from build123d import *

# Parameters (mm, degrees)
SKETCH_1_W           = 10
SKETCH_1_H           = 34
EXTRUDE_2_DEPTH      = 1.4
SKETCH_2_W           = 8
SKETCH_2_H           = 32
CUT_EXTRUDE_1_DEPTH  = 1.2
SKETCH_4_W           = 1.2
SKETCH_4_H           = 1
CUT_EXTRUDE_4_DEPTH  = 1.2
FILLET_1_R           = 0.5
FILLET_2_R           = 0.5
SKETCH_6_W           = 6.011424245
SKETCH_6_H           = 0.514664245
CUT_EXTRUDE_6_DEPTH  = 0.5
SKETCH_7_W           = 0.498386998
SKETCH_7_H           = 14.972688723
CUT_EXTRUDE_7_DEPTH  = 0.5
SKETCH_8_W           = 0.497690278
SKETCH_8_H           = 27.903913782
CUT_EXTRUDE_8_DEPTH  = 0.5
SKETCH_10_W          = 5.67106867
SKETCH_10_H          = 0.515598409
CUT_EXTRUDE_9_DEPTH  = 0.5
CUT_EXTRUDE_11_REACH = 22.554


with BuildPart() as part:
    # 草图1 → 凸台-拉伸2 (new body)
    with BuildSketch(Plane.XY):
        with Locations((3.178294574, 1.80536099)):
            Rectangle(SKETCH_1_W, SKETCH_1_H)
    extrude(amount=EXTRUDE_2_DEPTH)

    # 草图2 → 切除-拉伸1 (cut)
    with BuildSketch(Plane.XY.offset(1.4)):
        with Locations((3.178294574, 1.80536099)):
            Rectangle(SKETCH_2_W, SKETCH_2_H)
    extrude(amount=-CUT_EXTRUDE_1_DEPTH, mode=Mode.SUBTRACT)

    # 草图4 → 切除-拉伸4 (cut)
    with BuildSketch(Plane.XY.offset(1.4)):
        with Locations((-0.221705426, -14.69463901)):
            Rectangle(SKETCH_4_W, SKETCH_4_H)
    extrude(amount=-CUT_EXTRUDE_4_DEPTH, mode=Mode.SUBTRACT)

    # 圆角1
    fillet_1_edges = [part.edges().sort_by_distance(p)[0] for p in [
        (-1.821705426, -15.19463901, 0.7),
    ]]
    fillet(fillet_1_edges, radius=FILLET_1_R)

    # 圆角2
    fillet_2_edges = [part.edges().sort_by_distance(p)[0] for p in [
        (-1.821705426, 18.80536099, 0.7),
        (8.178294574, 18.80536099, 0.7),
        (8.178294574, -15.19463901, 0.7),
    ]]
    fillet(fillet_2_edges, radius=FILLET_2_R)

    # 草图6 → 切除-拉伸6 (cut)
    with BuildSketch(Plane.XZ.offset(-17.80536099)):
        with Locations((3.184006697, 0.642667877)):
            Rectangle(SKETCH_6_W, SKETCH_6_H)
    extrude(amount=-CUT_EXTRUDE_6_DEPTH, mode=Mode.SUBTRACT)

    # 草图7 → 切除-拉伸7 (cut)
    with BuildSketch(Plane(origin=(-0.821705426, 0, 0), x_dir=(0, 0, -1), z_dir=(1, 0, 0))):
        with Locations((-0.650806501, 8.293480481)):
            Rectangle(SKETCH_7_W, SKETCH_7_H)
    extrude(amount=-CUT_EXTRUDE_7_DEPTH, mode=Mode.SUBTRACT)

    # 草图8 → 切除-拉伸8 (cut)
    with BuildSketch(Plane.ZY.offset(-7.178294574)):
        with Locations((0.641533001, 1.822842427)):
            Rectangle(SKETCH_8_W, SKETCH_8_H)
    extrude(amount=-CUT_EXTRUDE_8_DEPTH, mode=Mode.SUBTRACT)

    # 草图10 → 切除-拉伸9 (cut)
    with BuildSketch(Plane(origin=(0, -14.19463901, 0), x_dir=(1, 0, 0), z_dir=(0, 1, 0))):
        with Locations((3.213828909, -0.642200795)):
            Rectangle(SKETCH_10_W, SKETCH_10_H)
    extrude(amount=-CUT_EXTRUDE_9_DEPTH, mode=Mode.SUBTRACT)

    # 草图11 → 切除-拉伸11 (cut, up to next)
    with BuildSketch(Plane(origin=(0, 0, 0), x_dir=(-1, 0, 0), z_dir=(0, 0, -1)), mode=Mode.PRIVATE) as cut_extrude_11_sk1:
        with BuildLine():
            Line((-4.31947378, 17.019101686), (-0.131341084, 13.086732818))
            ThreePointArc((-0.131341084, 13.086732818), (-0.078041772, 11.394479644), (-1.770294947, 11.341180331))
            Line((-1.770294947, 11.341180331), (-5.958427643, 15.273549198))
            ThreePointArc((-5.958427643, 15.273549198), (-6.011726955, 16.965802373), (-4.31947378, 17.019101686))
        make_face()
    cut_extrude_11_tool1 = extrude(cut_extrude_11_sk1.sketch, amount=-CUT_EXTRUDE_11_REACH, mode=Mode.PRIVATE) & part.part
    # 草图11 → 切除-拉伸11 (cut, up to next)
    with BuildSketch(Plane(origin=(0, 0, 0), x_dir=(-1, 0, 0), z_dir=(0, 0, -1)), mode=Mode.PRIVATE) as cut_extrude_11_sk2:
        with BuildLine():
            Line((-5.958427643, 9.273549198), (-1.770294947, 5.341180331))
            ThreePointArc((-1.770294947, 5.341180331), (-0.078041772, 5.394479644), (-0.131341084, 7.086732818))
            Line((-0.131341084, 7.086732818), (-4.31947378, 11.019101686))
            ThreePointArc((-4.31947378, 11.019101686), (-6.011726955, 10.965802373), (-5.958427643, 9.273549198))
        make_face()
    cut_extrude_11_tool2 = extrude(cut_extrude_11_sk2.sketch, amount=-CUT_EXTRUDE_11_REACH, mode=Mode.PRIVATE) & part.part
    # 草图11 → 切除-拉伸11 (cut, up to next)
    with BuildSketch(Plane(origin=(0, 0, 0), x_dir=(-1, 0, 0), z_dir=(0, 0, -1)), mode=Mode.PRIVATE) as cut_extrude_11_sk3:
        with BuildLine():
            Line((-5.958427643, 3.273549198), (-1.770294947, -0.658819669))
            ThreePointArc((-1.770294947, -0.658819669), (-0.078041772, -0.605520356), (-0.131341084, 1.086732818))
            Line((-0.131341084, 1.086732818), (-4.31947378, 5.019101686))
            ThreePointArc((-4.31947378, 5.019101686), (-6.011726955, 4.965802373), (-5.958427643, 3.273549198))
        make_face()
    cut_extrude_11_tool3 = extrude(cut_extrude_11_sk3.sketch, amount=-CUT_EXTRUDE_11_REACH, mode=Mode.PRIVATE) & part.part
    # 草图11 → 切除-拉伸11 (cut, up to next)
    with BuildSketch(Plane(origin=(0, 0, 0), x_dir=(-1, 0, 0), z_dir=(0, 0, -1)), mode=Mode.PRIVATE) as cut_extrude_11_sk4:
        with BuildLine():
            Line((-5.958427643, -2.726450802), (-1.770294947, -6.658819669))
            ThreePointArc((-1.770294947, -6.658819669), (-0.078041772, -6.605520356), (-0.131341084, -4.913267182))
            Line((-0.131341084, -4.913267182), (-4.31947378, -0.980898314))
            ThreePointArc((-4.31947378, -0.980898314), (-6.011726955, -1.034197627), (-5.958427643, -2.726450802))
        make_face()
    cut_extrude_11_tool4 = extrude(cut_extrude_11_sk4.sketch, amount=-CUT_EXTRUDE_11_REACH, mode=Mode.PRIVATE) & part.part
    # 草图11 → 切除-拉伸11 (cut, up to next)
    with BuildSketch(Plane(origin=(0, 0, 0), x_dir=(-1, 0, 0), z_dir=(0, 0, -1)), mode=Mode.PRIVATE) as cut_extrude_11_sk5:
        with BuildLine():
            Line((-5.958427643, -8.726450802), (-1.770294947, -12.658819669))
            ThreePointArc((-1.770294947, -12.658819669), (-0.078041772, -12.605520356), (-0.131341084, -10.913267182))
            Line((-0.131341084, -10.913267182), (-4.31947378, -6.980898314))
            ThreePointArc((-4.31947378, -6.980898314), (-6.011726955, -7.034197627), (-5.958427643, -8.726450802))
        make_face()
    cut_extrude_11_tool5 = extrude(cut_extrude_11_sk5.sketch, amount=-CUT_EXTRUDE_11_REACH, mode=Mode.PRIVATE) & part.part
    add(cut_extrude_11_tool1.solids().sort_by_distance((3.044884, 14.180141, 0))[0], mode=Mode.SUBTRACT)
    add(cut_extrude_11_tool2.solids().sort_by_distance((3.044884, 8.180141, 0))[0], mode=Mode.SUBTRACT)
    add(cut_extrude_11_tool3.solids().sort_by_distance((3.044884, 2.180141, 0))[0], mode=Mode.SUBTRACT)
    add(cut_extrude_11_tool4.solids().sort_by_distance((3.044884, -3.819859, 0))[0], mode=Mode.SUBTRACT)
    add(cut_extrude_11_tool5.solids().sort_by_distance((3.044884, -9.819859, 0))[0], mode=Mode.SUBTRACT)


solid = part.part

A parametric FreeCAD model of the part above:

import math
import FreeCAD as App
import Part
import Sketcher


def edges_at(feature, points):
    """Names of the edges that pass closest to the given points."""
    edges = feature.Shape.Edges
    near = lambda p: min(range(len(edges)), key=lambda i: edges[i].distToShape(Part.Vertex(*p))[0])
    return sorted({f"Edge{near(p) + 1}" for p in points})


def add_polygon(sketch, points):
    """Adds a closed chain of lines whose ends are joined by coincident constraints."""
    first, n = sketch.GeometryCount, len(points)
    for a, b in zip(points, points[1:] + points[:1]):
        sketch.addGeometry(Part.LineSegment(App.Vector(*a, 0), App.Vector(*b, 0)), False)
    for i in range(n):
        sketch.addConstraint(Sketcher.Constraint("Coincident", first + i, 2, first + (i + 1) % n, 1))

doc = App.newDocument("Part")
body = doc.addObject("PartDesign::Body", "Body")

# Sketch on XY plane
sketch1 = doc.addObject("Sketcher::SketchObject", "Sketch")
body.addObject(sketch1)
sketch1.AttachmentSupport = (doc.XY_Plane, [""])
sketch1.MapMode = "FlatFace"
add_polygon(sketch1, [(-1.821705, 18.805361), (-1.821705, -15.194639), (8.178295, -15.194639), (8.178295, 18.805361)])  # lines 0-3
sketch1.addConstraint(Sketcher.Constraint("Vertical", 0))
sketch1.addConstraint(Sketcher.Constraint("Horizontal", 1))
sketch1.addConstraint(Sketcher.Constraint("Vertical", 2))
sketch1.addConstraint(Sketcher.Constraint("Horizontal", 3))
sketch1.addConstraint(Sketcher.Constraint("DistanceX", 1, 1, 1, 2, 10.0))
sketch1.addConstraint(Sketcher.Constraint("DistanceY", 0, 2, 0, 1, 34.0))
sketch1.addConstraint(Sketcher.Constraint("DistanceY", 0, 2, -1, 1, 15.194639))
sketch1.addConstraint(Sketcher.Constraint("DistanceX", 0, 2, -1, 1, 1.821705))
pad1 = doc.addObject("PartDesign::Pad", "Pad")
body.addObject(pad1)
pad1.Profile = sketch1
pad1.Length = 1.4

# Sketch on XY plane
sketch2 = doc.addObject("Sketcher::SketchObject", "Sketch001")
body.addObject(sketch2)
sketch2.AttachmentSupport = (doc.XY_Plane, [""])
sketch2.MapMode = "FlatFace"
sketch2.AttachmentOffset = App.Placement(App.Vector(0, 0, 1.4), App.Rotation())
add_polygon(sketch2, [(-0.821705, 17.805361), (-0.821705, -14.194639), (7.178295, -14.194639), (7.178295, 17.805361)])  # lines 0-3
sketch2.addConstraint(Sketcher.Constraint("Vertical", 0))
sketch2.addConstraint(Sketcher.Constraint("Horizontal", 1))
sketch2.addConstraint(Sketcher.Constraint("Vertical", 2))
sketch2.addConstraint(Sketcher.Constraint("Horizontal", 3))
sketch2.addConstraint(Sketcher.Constraint("DistanceX", 1, 1, 1, 2, 8.0))
sketch2.addConstraint(Sketcher.Constraint("DistanceY", 0, 2, 0, 1, 32.0))
sketch2.addConstraint(Sketcher.Constraint("DistanceY", 0, 2, -1, 1, 14.194639))
sketch2.addConstraint(Sketcher.Constraint("DistanceX", 0, 2, -1, 1, 0.821705))
pocket1 = doc.addObject("PartDesign::Pocket", "Pocket")
body.addObject(pocket1)
pocket1.Profile = sketch2
pocket1.Length = 1.2

# Sketch on XY plane
sketch3 = doc.addObject("Sketcher::SketchObject", "Sketch002")
body.addObject(sketch3)
sketch3.AttachmentSupport = (doc.XY_Plane, [""])
sketch3.MapMode = "FlatFace"
sketch3.AttachmentOffset = App.Placement(App.Vector(0, 0, 1.4), App.Rotation())
add_polygon(sketch3, [(-0.821705, -14.194639), (-0.821705, -15.194639), (0.378295, -15.194639), (0.378295, -14.194639)])  # lines 0-3
sketch3.addConstraint(Sketcher.Constraint("Vertical", 0))
sketch3.addConstraint(Sketcher.Constraint("Horizontal", 1))
sketch3.addConstraint(Sketcher.Constraint("Vertical", 2))
sketch3.addConstraint(Sketcher.Constraint("Horizontal", 3))
sketch3.addConstraint(Sketcher.Constraint("DistanceY", 0, 2, 0, 1, 1.0))
sketch3.addConstraint(Sketcher.Constraint("DistanceX", 1, 1, 1, 2, 1.2))
sketch3.addConstraint(Sketcher.Constraint("DistanceY", 0, 2, -1, 1, 15.194639))
sketch3.addConstraint(Sketcher.Constraint("DistanceX", 0, 2, -1, 1, 0.821705))
pocket2 = doc.addObject("PartDesign::Pocket", "Pocket001")
body.addObject(pocket2)
pocket2.Profile = sketch3
pocket2.Length = 1.2
doc.recompute()

fillet = doc.addObject("PartDesign::Fillet", "Fillet")
body.addObject(fillet)
fillet.Base = (pocket2, edges_at(pocket2, [(-1.822, -15.195, 0.7)]))
fillet.Radius = 0.5
doc.recompute()

fillet2 = doc.addObject("PartDesign::Fillet", "Fillet001")
body.addObject(fillet2)
fillet2.Base = (fillet, edges_at(fillet, [(-1.822, 18.805, 0.7), (8.178, 18.805, 0.7), (8.178, -15.195, 0.7)]))
fillet2.Radius = 0.5

# Sketch on XZ plane
sketch4 = doc.addObject("Sketcher::SketchObject", "Sketch003")
body.addObject(sketch4)
sketch4.AttachmentSupport = (doc.XZ_Plane, [""])
sketch4.MapMode = "FlatFace"
sketch4.AttachmentOffset = App.Placement(App.Vector(0, 0, -17.805361), App.Rotation())
add_polygon(sketch4, [(0.178295, 0.9), (0.178295, 0.385336), (6.189719, 0.385336), (6.189719, 0.9)])  # lines 0-3
sketch4.addConstraint(Sketcher.Constraint("Vertical", 0))
sketch4.addConstraint(Sketcher.Constraint("Horizontal", 1))
sketch4.addConstraint(Sketcher.Constraint("Vertical", 2))
sketch4.addConstraint(Sketcher.Constraint("Horizontal", 3))
sketch4.addConstraint(Sketcher.Constraint("DistanceY", -1, 1, 2, 2, 0.9))
sketch4.addConstraint(Sketcher.Constraint("DistanceX", 1, 1, 1, 2, 6.011424))
sketch4.addConstraint(Sketcher.Constraint("DistanceY", 0, 2, 0, 1, 0.514664))
sketch4.addConstraint(Sketcher.Constraint("DistanceX", -1, 1, 1, 2, 6.189719))
pocket3 = doc.addObject("PartDesign::Pocket", "Pocket002")
body.addObject(pocket3)
pocket3.Profile = sketch4
pocket3.Length = 0.5

# Sketch on YZ plane
sketch5 = doc.addObject("Sketcher::SketchObject", "Sketch004")
body.addObject(sketch5)
sketch5.AttachmentSupport = (doc.YZ_Plane, [""])
sketch5.MapMode = "FlatFace"
sketch5.AttachmentOffset = App.Placement(App.Vector(0, 0, -0.821705), App.Rotation())
add_polygon(sketch5, [(15.779825, 0.9), (0.807136, 0.9), (0.807136, 0.401613), (15.779825, 0.401613)])  # lines 0-3
sketch5.addConstraint(Sketcher.Constraint("Horizontal", 0))
sketch5.addConstraint(Sketcher.Constraint("Vertical", 1))
sketch5.addConstraint(Sketcher.Constraint("Horizontal", 2))
sketch5.addConstraint(Sketcher.Constraint("Vertical", 3))
sketch5.addConstraint(Sketcher.Constraint("DistanceY", -1, 1, 0, 2, 0.9))
sketch5.addConstraint(Sketcher.Constraint("DistanceX", 0, 2, 0, 1, 14.972689))
sketch5.addConstraint(Sketcher.Constraint("DistanceY", 1, 2, 1, 1, 0.498387))
sketch5.addConstraint(Sketcher.Constraint("DistanceX", -1, 1, 0, 2, 0.807136))
pocket4 = doc.addObject("PartDesign::Pocket", "Pocket003")
body.addObject(pocket4)
pocket4.Profile = sketch5
pocket4.Length = 0.5

# Sketch on YZ plane
sketch6 = doc.addObject("Sketcher::SketchObject", "Sketch005")
body.addObject(sketch6)
sketch6.AttachmentSupport = (doc.YZ_Plane, [""])
sketch6.MapMode = "FlatFace"
sketch6.AttachmentOffset = App.Placement(App.Vector(0, 0, 7.178295), App.Rotation())
add_polygon(sketch6, [(15.774799, 0.392688), (-12.129114, 0.392688), (-12.129114, 0.890378), (15.774799, 0.890378)])  # lines 0-3
sketch6.addConstraint(Sketcher.Constraint("Horizontal", 0))
sketch6.addConstraint(Sketcher.Constraint("Vertical", 1))
sketch6.addConstraint(Sketcher.Constraint("Horizontal", 2))
sketch6.addConstraint(Sketcher.Constraint("Vertical", 3))
sketch6.addConstraint(Sketcher.Constraint("DistanceY", 1, 1, 1, 2, 0.49769))
sketch6.addConstraint(Sketcher.Constraint("DistanceX", -1, 1, 2, 2, 15.774799))
sketch6.addConstraint(Sketcher.Constraint("DistanceX", 0, 2, 0, 1, 27.903914))
sketch6.addConstraint(Sketcher.Constraint("DistanceY", -1, 1, 1, 2, 0.890378))
pocket5 = doc.addObject("PartDesign::Pocket", "Pocket004")
body.addObject(pocket5)
pocket5.Profile = sketch6
pocket5.Length = 0.5
pocket5.Reversed = True

# Sketch on XZ plane
sketch7 = doc.addObject("Sketcher::SketchObject", "Sketch006")
body.addObject(sketch7)
sketch7.AttachmentSupport = (doc.XZ_Plane, [""])
sketch7.MapMode = "FlatFace"
sketch7.AttachmentOffset = App.Placement(App.Vector(0, 0, 14.194639), App.Rotation())
add_polygon(sketch7, [(0.378295, 0.384402), (0.378295, 0.9), (6.049363, 0.9), (6.049363, 0.384402)])  # lines 0-3
sketch7.addConstraint(Sketcher.Constraint("Vertical", 0))
sketch7.addConstraint(Sketcher.Constraint("Horizontal", 1))
sketch7.addConstraint(Sketcher.Constraint("Vertical", 2))
sketch7.addConstraint(Sketcher.Constraint("Horizontal", 3))
sketch7.addConstraint(Sketcher.Constraint("DistanceY", -1, 1, 0, 2, 0.9))
sketch7.addConstraint(Sketcher.Constraint("DistanceY", 0, 1, 0, 2, 0.515598))
sketch7.addConstraint(Sketcher.Constraint("DistanceX", 1, 1, 1, 2, 5.671069))
sketch7.addConstraint(Sketcher.Constraint("DistanceX", -1, 1, 0, 2, 0.378295))
pocket6 = doc.addObject("PartDesign::Pocket", "Pocket005")
body.addObject(pocket6)
pocket6.Profile = sketch7
pocket6.Length = 0.5
pocket6.Reversed = True

# Sketch on XY plane
sketch8 = doc.addObject("Sketcher::SketchObject", "Sketch007")
body.addObject(sketch8)
sketch8.AttachmentSupport = (doc.XY_Plane, [""])
sketch8.MapMode = "FlatFace"
sketch8.addGeometry(Part.LineSegment(App.Vector(0.131341, 13.086733, 0), App.Vector(4.319474, 17.019102, 0)), False)
sketch8.addGeometry(Part.ArcOfCircle(Part.Circle(App.Vector(5.138951, 16.146325, 0), App.Vector(0, 0, 1), 1.197197), math.radians(-46.803995), math.radians(133.196005)), False)
sketch8.addGeometry(Part.LineSegment(App.Vector(5.958428, 15.273549, 0), App.Vector(1.770295, 11.34118, 0)), False)
sketch8.addGeometry(Part.ArcOfCircle(Part.Circle(App.Vector(0.950818, 12.213957, 0), App.Vector(0, 0, 1), 1.197197), math.radians(133.196005), math.radians(313.196005)), False)
sketch8.addConstraint(Sketcher.Constraint("Tangent", 0, 2, 1, 2))
sketch8.addConstraint(Sketcher.Constraint("Tangent", 1, 1, 2, 1))
sketch8.addConstraint(Sketcher.Constraint("Tangent", 2, 2, 3, 2))
sketch8.addConstraint(Sketcher.Constraint("Tangent", 3, 1, 0, 1))
sketch8.addConstraint(Sketcher.Constraint("Equal", 1, 3))
sketch8.addConstraint(Sketcher.Constraint("Radius", 1, 1.197197))
sketch8.addConstraint(Sketcher.Constraint("DistanceY", -1, 1, 0, 2, 17.019102))
sketch8.addConstraint(Sketcher.Constraint("Distance", 0, 5.744909))
sketch8.addConstraint(Sketcher.Constraint("DistanceX", -1, 1, 1, 3, 5.138951))
sketch8.addConstraint(Sketcher.Constraint("DistanceX", -1, 1, 3, 3, 0.950818))
pocket7 = doc.addObject("PartDesign::Pocket", "Pocket006")
body.addObject(pocket7)
pocket7.Profile = sketch8
pocket7.Type = "UpToFirst"
pocket7.Reversed = True

# Sketch on XY plane
sketch9 = doc.addObject("Sketcher::SketchObject", "Sketch008")
body.addObject(sketch9)
sketch9.AttachmentSupport = (doc.XY_Plane, [""])
sketch9.MapMode = "FlatFace"
sketch9.addGeometry(Part.LineSegment(App.Vector(5.958428, 9.273549, 0), App.Vector(1.770295, 5.34118, 0)), False)
sketch9.addGeometry(Part.ArcOfCircle(Part.Circle(App.Vector(0.950818, 6.213957, 0), App.Vector(0, 0, 1), 1.197197), math.radians(133.196005), math.radians(313.196005)), False)
sketch9.addGeometry(Part.LineSegment(App.Vector(0.131341, 7.086733, 0), App.Vector(4.319474, 11.019102, 0)), False)
sketch9.addGeometry(Part.ArcOfCircle(Part.Circle(App.Vector(5.138951, 10.146325, 0), App.Vector(0, 0, 1), 1.197197), math.radians(-46.803995), math.radians(133.196005)), False)
sketch9.addConstraint(Sketcher.Constraint("Tangent", 0, 2, 1, 2))
sketch9.addConstraint(Sketcher.Constraint("Tangent", 1, 1, 2, 1))
sketch9.addConstraint(Sketcher.Constraint("Tangent", 2, 2, 3, 2))
sketch9.addConstraint(Sketcher.Constraint("Tangent", 3, 1, 0, 1))
sketch9.addConstraint(Sketcher.Constraint("Equal", 1, 3))
sketch9.addConstraint(Sketcher.Constraint("Radius", 1, 1.197197))
sketch9.addConstraint(Sketcher.Constraint("DistanceY", -1, 1, 2, 2, 11.019102))
sketch9.addConstraint(Sketcher.Constraint("Distance", 0, 5.744909))
sketch9.addConstraint(Sketcher.Constraint("DistanceX", -1, 1, 1, 3, 0.950818))
sketch9.addConstraint(Sketcher.Constraint("DistanceX", -1, 1, 3, 3, 5.138951))
pocket8 = doc.addObject("PartDesign::Pocket", "Pocket007")
body.addObject(pocket8)
pocket8.Profile = sketch9
pocket8.Type = "UpToFirst"
pocket8.Reversed = True

# Sketch on XY plane
sketch10 = doc.addObject("Sketcher::SketchObject", "Sketch009")
body.addObject(sketch10)
sketch10.AttachmentSupport = (doc.XY_Plane, [""])
sketch10.MapMode = "FlatFace"
sketch10.addGeometry(Part.LineSegment(App.Vector(5.958428, 3.273549, 0), App.Vector(1.770295, -0.65882, 0)), False)
sketch10.addGeometry(Part.ArcOfCircle(Part.Circle(App.Vector(0.950818, 0.213957, 0), App.Vector(0, 0, 1), 1.197197), math.radians(133.196005), math.radians(313.196005)), False)
sketch10.addGeometry(Part.LineSegment(App.Vector(0.131341, 1.086733, 0), App.Vector(4.319474, 5.019102, 0)), False)
sketch10.addGeometry(Part.ArcOfCircle(Part.Circle(App.Vector(5.138951, 4.146325, 0), App.Vector(0, 0, 1), 1.197197), math.radians(-46.803995), math.radians(133.196005)), False)
sketch10.addConstraint(Sketcher.Constraint("Tangent", 0, 2, 1, 2))
sketch10.addConstraint(Sketcher.Constraint("Tangent", 1, 1, 2, 1))
sketch10.addConstraint(Sketcher.Constraint("Tangent", 2, 2, 3, 2))
sketch10.addConstraint(Sketcher.Constraint("Tangent", 3, 1, 0, 1))
sketch10.addConstraint(Sketcher.Constraint("Equal", 1, 3))
sketch10.addConstraint(Sketcher.Constraint("Radius", 1, 1.197197))
sketch10.addConstraint(Sketcher.Constraint("DistanceY", -1, 1, 2, 2, 5.019102))
sketch10.addConstraint(Sketcher.Constraint("Distance", 0, 5.744909))
sketch10.addConstraint(Sketcher.Constraint("DistanceX", -1, 1, 1, 3, 0.950818))
sketch10.addConstraint(Sketcher.Constraint("DistanceX", -1, 1, 3, 3, 5.138951))
pocket9 = doc.addObject("PartDesign::Pocket", "Pocket008")
body.addObject(pocket9)
pocket9.Profile = sketch10
pocket9.Type = "UpToFirst"
pocket9.Reversed = True

# Sketch on XY plane
sketch11 = doc.addObject("Sketcher::SketchObject", "Sketch010")
body.addObject(sketch11)
sketch11.AttachmentSupport = (doc.XY_Plane, [""])
sketch11.MapMode = "FlatFace"
sketch11.addGeometry(Part.LineSegment(App.Vector(5.958428, -2.726451, 0), App.Vector(1.770295, -6.65882, 0)), False)
sketch11.addGeometry(Part.ArcOfCircle(Part.Circle(App.Vector(0.950818, -5.786043, 0), App.Vector(0, 0, 1), 1.197197), math.radians(133.196005), math.radians(313.196005)), False)
sketch11.addGeometry(Part.LineSegment(App.Vector(0.131341, -4.913267, 0), App.Vector(4.319474, -0.980898, 0)), False)
sketch11.addGeometry(Part.ArcOfCircle(Part.Circle(App.Vector(5.138951, -1.853675, 0), App.Vector(0, 0, 1), 1.197197), math.radians(-46.803995), math.radians(133.196005)), False)
sketch11.addConstraint(Sketcher.Constraint("Tangent", 0, 2, 1, 2))
sketch11.addConstraint(Sketcher.Constraint("Tangent", 1, 1, 2, 1))
sketch11.addConstraint(Sketcher.Constraint("Tangent", 2, 2, 3, 2))
sketch11.addConstraint(Sketcher.Constraint("Tangent", 3, 1, 0, 1))
sketch11.addConstraint(Sketcher.Constraint("Equal", 1, 3))
sketch11.addConstraint(Sketcher.Constraint("Radius", 1, 1.197197))
sketch11.addConstraint(Sketcher.Constraint("DistanceY", 2, 2, -1, 1, 0.980898))
sketch11.addConstraint(Sketcher.Constraint("Distance", 0, 5.744909))
sketch11.addConstraint(Sketcher.Constraint("DistanceX", -1, 1, 1, 3, 0.950818))
sketch11.addConstraint(Sketcher.Constraint("DistanceX", -1, 1, 3, 3, 5.138951))
pocket10 = doc.addObject("PartDesign::Pocket", "Pocket009")
body.addObject(pocket10)
pocket10.Profile = sketch11
pocket10.Type = "UpToFirst"
pocket10.Reversed = True

# Sketch on XY plane
sketch12 = doc.addObject("Sketcher::SketchObject", "Sketch011")
body.addObject(sketch12)
sketch12.AttachmentSupport = (doc.XY_Plane, [""])
sketch12.MapMode = "FlatFace"
sketch12.addGeometry(Part.LineSegment(App.Vector(5.958428, -8.726451, 0), App.Vector(1.770295, -12.65882, 0)), False)
sketch12.addGeometry(Part.ArcOfCircle(Part.Circle(App.Vector(0.950818, -11.786043, 0), App.Vector(0, 0, 1), 1.197197), math.radians(133.196005), math.radians(313.196005)), False)
sketch12.addGeometry(Part.LineSegment(App.Vector(0.131341, -10.913267, 0), App.Vector(4.319474, -6.980898, 0)), False)
sketch12.addGeometry(Part.ArcOfCircle(Part.Circle(App.Vector(5.138951, -7.853675, 0), App.Vector(0, 0, 1), 1.197197), math.radians(-46.803995), math.radians(133.196005)), False)
sketch12.addConstraint(Sketcher.Constraint("Tangent", 0, 2, 1, 2))
sketch12.addConstraint(Sketcher.Constraint("Tangent", 1, 1, 2, 1))
sketch12.addConstraint(Sketcher.Constraint("Tangent", 2, 2, 3, 2))
sketch12.addConstraint(Sketcher.Constraint("Tangent", 3, 1, 0, 1))
sketch12.addConstraint(Sketcher.Constraint("Equal", 1, 3))
sketch12.addConstraint(Sketcher.Constraint("Radius", 1, 1.197197))
sketch12.addConstraint(Sketcher.Constraint("DistanceY", 2, 2, -1, 1, 6.980898))
sketch12.addConstraint(Sketcher.Constraint("Distance", 0, 5.744909))
sketch12.addConstraint(Sketcher.Constraint("DistanceX", -1, 1, 1, 3, 0.950818))
sketch12.addConstraint(Sketcher.Constraint("DistanceX", -1, 1, 3, 3, 5.138951))
pocket11 = doc.addObject("PartDesign::Pocket", "Pocket010")
body.addObject(pocket11)
pocket11.Profile = sketch12
pocket11.Type = "UpToFirst"
pocket11.Reversed = True

doc.recompute()
